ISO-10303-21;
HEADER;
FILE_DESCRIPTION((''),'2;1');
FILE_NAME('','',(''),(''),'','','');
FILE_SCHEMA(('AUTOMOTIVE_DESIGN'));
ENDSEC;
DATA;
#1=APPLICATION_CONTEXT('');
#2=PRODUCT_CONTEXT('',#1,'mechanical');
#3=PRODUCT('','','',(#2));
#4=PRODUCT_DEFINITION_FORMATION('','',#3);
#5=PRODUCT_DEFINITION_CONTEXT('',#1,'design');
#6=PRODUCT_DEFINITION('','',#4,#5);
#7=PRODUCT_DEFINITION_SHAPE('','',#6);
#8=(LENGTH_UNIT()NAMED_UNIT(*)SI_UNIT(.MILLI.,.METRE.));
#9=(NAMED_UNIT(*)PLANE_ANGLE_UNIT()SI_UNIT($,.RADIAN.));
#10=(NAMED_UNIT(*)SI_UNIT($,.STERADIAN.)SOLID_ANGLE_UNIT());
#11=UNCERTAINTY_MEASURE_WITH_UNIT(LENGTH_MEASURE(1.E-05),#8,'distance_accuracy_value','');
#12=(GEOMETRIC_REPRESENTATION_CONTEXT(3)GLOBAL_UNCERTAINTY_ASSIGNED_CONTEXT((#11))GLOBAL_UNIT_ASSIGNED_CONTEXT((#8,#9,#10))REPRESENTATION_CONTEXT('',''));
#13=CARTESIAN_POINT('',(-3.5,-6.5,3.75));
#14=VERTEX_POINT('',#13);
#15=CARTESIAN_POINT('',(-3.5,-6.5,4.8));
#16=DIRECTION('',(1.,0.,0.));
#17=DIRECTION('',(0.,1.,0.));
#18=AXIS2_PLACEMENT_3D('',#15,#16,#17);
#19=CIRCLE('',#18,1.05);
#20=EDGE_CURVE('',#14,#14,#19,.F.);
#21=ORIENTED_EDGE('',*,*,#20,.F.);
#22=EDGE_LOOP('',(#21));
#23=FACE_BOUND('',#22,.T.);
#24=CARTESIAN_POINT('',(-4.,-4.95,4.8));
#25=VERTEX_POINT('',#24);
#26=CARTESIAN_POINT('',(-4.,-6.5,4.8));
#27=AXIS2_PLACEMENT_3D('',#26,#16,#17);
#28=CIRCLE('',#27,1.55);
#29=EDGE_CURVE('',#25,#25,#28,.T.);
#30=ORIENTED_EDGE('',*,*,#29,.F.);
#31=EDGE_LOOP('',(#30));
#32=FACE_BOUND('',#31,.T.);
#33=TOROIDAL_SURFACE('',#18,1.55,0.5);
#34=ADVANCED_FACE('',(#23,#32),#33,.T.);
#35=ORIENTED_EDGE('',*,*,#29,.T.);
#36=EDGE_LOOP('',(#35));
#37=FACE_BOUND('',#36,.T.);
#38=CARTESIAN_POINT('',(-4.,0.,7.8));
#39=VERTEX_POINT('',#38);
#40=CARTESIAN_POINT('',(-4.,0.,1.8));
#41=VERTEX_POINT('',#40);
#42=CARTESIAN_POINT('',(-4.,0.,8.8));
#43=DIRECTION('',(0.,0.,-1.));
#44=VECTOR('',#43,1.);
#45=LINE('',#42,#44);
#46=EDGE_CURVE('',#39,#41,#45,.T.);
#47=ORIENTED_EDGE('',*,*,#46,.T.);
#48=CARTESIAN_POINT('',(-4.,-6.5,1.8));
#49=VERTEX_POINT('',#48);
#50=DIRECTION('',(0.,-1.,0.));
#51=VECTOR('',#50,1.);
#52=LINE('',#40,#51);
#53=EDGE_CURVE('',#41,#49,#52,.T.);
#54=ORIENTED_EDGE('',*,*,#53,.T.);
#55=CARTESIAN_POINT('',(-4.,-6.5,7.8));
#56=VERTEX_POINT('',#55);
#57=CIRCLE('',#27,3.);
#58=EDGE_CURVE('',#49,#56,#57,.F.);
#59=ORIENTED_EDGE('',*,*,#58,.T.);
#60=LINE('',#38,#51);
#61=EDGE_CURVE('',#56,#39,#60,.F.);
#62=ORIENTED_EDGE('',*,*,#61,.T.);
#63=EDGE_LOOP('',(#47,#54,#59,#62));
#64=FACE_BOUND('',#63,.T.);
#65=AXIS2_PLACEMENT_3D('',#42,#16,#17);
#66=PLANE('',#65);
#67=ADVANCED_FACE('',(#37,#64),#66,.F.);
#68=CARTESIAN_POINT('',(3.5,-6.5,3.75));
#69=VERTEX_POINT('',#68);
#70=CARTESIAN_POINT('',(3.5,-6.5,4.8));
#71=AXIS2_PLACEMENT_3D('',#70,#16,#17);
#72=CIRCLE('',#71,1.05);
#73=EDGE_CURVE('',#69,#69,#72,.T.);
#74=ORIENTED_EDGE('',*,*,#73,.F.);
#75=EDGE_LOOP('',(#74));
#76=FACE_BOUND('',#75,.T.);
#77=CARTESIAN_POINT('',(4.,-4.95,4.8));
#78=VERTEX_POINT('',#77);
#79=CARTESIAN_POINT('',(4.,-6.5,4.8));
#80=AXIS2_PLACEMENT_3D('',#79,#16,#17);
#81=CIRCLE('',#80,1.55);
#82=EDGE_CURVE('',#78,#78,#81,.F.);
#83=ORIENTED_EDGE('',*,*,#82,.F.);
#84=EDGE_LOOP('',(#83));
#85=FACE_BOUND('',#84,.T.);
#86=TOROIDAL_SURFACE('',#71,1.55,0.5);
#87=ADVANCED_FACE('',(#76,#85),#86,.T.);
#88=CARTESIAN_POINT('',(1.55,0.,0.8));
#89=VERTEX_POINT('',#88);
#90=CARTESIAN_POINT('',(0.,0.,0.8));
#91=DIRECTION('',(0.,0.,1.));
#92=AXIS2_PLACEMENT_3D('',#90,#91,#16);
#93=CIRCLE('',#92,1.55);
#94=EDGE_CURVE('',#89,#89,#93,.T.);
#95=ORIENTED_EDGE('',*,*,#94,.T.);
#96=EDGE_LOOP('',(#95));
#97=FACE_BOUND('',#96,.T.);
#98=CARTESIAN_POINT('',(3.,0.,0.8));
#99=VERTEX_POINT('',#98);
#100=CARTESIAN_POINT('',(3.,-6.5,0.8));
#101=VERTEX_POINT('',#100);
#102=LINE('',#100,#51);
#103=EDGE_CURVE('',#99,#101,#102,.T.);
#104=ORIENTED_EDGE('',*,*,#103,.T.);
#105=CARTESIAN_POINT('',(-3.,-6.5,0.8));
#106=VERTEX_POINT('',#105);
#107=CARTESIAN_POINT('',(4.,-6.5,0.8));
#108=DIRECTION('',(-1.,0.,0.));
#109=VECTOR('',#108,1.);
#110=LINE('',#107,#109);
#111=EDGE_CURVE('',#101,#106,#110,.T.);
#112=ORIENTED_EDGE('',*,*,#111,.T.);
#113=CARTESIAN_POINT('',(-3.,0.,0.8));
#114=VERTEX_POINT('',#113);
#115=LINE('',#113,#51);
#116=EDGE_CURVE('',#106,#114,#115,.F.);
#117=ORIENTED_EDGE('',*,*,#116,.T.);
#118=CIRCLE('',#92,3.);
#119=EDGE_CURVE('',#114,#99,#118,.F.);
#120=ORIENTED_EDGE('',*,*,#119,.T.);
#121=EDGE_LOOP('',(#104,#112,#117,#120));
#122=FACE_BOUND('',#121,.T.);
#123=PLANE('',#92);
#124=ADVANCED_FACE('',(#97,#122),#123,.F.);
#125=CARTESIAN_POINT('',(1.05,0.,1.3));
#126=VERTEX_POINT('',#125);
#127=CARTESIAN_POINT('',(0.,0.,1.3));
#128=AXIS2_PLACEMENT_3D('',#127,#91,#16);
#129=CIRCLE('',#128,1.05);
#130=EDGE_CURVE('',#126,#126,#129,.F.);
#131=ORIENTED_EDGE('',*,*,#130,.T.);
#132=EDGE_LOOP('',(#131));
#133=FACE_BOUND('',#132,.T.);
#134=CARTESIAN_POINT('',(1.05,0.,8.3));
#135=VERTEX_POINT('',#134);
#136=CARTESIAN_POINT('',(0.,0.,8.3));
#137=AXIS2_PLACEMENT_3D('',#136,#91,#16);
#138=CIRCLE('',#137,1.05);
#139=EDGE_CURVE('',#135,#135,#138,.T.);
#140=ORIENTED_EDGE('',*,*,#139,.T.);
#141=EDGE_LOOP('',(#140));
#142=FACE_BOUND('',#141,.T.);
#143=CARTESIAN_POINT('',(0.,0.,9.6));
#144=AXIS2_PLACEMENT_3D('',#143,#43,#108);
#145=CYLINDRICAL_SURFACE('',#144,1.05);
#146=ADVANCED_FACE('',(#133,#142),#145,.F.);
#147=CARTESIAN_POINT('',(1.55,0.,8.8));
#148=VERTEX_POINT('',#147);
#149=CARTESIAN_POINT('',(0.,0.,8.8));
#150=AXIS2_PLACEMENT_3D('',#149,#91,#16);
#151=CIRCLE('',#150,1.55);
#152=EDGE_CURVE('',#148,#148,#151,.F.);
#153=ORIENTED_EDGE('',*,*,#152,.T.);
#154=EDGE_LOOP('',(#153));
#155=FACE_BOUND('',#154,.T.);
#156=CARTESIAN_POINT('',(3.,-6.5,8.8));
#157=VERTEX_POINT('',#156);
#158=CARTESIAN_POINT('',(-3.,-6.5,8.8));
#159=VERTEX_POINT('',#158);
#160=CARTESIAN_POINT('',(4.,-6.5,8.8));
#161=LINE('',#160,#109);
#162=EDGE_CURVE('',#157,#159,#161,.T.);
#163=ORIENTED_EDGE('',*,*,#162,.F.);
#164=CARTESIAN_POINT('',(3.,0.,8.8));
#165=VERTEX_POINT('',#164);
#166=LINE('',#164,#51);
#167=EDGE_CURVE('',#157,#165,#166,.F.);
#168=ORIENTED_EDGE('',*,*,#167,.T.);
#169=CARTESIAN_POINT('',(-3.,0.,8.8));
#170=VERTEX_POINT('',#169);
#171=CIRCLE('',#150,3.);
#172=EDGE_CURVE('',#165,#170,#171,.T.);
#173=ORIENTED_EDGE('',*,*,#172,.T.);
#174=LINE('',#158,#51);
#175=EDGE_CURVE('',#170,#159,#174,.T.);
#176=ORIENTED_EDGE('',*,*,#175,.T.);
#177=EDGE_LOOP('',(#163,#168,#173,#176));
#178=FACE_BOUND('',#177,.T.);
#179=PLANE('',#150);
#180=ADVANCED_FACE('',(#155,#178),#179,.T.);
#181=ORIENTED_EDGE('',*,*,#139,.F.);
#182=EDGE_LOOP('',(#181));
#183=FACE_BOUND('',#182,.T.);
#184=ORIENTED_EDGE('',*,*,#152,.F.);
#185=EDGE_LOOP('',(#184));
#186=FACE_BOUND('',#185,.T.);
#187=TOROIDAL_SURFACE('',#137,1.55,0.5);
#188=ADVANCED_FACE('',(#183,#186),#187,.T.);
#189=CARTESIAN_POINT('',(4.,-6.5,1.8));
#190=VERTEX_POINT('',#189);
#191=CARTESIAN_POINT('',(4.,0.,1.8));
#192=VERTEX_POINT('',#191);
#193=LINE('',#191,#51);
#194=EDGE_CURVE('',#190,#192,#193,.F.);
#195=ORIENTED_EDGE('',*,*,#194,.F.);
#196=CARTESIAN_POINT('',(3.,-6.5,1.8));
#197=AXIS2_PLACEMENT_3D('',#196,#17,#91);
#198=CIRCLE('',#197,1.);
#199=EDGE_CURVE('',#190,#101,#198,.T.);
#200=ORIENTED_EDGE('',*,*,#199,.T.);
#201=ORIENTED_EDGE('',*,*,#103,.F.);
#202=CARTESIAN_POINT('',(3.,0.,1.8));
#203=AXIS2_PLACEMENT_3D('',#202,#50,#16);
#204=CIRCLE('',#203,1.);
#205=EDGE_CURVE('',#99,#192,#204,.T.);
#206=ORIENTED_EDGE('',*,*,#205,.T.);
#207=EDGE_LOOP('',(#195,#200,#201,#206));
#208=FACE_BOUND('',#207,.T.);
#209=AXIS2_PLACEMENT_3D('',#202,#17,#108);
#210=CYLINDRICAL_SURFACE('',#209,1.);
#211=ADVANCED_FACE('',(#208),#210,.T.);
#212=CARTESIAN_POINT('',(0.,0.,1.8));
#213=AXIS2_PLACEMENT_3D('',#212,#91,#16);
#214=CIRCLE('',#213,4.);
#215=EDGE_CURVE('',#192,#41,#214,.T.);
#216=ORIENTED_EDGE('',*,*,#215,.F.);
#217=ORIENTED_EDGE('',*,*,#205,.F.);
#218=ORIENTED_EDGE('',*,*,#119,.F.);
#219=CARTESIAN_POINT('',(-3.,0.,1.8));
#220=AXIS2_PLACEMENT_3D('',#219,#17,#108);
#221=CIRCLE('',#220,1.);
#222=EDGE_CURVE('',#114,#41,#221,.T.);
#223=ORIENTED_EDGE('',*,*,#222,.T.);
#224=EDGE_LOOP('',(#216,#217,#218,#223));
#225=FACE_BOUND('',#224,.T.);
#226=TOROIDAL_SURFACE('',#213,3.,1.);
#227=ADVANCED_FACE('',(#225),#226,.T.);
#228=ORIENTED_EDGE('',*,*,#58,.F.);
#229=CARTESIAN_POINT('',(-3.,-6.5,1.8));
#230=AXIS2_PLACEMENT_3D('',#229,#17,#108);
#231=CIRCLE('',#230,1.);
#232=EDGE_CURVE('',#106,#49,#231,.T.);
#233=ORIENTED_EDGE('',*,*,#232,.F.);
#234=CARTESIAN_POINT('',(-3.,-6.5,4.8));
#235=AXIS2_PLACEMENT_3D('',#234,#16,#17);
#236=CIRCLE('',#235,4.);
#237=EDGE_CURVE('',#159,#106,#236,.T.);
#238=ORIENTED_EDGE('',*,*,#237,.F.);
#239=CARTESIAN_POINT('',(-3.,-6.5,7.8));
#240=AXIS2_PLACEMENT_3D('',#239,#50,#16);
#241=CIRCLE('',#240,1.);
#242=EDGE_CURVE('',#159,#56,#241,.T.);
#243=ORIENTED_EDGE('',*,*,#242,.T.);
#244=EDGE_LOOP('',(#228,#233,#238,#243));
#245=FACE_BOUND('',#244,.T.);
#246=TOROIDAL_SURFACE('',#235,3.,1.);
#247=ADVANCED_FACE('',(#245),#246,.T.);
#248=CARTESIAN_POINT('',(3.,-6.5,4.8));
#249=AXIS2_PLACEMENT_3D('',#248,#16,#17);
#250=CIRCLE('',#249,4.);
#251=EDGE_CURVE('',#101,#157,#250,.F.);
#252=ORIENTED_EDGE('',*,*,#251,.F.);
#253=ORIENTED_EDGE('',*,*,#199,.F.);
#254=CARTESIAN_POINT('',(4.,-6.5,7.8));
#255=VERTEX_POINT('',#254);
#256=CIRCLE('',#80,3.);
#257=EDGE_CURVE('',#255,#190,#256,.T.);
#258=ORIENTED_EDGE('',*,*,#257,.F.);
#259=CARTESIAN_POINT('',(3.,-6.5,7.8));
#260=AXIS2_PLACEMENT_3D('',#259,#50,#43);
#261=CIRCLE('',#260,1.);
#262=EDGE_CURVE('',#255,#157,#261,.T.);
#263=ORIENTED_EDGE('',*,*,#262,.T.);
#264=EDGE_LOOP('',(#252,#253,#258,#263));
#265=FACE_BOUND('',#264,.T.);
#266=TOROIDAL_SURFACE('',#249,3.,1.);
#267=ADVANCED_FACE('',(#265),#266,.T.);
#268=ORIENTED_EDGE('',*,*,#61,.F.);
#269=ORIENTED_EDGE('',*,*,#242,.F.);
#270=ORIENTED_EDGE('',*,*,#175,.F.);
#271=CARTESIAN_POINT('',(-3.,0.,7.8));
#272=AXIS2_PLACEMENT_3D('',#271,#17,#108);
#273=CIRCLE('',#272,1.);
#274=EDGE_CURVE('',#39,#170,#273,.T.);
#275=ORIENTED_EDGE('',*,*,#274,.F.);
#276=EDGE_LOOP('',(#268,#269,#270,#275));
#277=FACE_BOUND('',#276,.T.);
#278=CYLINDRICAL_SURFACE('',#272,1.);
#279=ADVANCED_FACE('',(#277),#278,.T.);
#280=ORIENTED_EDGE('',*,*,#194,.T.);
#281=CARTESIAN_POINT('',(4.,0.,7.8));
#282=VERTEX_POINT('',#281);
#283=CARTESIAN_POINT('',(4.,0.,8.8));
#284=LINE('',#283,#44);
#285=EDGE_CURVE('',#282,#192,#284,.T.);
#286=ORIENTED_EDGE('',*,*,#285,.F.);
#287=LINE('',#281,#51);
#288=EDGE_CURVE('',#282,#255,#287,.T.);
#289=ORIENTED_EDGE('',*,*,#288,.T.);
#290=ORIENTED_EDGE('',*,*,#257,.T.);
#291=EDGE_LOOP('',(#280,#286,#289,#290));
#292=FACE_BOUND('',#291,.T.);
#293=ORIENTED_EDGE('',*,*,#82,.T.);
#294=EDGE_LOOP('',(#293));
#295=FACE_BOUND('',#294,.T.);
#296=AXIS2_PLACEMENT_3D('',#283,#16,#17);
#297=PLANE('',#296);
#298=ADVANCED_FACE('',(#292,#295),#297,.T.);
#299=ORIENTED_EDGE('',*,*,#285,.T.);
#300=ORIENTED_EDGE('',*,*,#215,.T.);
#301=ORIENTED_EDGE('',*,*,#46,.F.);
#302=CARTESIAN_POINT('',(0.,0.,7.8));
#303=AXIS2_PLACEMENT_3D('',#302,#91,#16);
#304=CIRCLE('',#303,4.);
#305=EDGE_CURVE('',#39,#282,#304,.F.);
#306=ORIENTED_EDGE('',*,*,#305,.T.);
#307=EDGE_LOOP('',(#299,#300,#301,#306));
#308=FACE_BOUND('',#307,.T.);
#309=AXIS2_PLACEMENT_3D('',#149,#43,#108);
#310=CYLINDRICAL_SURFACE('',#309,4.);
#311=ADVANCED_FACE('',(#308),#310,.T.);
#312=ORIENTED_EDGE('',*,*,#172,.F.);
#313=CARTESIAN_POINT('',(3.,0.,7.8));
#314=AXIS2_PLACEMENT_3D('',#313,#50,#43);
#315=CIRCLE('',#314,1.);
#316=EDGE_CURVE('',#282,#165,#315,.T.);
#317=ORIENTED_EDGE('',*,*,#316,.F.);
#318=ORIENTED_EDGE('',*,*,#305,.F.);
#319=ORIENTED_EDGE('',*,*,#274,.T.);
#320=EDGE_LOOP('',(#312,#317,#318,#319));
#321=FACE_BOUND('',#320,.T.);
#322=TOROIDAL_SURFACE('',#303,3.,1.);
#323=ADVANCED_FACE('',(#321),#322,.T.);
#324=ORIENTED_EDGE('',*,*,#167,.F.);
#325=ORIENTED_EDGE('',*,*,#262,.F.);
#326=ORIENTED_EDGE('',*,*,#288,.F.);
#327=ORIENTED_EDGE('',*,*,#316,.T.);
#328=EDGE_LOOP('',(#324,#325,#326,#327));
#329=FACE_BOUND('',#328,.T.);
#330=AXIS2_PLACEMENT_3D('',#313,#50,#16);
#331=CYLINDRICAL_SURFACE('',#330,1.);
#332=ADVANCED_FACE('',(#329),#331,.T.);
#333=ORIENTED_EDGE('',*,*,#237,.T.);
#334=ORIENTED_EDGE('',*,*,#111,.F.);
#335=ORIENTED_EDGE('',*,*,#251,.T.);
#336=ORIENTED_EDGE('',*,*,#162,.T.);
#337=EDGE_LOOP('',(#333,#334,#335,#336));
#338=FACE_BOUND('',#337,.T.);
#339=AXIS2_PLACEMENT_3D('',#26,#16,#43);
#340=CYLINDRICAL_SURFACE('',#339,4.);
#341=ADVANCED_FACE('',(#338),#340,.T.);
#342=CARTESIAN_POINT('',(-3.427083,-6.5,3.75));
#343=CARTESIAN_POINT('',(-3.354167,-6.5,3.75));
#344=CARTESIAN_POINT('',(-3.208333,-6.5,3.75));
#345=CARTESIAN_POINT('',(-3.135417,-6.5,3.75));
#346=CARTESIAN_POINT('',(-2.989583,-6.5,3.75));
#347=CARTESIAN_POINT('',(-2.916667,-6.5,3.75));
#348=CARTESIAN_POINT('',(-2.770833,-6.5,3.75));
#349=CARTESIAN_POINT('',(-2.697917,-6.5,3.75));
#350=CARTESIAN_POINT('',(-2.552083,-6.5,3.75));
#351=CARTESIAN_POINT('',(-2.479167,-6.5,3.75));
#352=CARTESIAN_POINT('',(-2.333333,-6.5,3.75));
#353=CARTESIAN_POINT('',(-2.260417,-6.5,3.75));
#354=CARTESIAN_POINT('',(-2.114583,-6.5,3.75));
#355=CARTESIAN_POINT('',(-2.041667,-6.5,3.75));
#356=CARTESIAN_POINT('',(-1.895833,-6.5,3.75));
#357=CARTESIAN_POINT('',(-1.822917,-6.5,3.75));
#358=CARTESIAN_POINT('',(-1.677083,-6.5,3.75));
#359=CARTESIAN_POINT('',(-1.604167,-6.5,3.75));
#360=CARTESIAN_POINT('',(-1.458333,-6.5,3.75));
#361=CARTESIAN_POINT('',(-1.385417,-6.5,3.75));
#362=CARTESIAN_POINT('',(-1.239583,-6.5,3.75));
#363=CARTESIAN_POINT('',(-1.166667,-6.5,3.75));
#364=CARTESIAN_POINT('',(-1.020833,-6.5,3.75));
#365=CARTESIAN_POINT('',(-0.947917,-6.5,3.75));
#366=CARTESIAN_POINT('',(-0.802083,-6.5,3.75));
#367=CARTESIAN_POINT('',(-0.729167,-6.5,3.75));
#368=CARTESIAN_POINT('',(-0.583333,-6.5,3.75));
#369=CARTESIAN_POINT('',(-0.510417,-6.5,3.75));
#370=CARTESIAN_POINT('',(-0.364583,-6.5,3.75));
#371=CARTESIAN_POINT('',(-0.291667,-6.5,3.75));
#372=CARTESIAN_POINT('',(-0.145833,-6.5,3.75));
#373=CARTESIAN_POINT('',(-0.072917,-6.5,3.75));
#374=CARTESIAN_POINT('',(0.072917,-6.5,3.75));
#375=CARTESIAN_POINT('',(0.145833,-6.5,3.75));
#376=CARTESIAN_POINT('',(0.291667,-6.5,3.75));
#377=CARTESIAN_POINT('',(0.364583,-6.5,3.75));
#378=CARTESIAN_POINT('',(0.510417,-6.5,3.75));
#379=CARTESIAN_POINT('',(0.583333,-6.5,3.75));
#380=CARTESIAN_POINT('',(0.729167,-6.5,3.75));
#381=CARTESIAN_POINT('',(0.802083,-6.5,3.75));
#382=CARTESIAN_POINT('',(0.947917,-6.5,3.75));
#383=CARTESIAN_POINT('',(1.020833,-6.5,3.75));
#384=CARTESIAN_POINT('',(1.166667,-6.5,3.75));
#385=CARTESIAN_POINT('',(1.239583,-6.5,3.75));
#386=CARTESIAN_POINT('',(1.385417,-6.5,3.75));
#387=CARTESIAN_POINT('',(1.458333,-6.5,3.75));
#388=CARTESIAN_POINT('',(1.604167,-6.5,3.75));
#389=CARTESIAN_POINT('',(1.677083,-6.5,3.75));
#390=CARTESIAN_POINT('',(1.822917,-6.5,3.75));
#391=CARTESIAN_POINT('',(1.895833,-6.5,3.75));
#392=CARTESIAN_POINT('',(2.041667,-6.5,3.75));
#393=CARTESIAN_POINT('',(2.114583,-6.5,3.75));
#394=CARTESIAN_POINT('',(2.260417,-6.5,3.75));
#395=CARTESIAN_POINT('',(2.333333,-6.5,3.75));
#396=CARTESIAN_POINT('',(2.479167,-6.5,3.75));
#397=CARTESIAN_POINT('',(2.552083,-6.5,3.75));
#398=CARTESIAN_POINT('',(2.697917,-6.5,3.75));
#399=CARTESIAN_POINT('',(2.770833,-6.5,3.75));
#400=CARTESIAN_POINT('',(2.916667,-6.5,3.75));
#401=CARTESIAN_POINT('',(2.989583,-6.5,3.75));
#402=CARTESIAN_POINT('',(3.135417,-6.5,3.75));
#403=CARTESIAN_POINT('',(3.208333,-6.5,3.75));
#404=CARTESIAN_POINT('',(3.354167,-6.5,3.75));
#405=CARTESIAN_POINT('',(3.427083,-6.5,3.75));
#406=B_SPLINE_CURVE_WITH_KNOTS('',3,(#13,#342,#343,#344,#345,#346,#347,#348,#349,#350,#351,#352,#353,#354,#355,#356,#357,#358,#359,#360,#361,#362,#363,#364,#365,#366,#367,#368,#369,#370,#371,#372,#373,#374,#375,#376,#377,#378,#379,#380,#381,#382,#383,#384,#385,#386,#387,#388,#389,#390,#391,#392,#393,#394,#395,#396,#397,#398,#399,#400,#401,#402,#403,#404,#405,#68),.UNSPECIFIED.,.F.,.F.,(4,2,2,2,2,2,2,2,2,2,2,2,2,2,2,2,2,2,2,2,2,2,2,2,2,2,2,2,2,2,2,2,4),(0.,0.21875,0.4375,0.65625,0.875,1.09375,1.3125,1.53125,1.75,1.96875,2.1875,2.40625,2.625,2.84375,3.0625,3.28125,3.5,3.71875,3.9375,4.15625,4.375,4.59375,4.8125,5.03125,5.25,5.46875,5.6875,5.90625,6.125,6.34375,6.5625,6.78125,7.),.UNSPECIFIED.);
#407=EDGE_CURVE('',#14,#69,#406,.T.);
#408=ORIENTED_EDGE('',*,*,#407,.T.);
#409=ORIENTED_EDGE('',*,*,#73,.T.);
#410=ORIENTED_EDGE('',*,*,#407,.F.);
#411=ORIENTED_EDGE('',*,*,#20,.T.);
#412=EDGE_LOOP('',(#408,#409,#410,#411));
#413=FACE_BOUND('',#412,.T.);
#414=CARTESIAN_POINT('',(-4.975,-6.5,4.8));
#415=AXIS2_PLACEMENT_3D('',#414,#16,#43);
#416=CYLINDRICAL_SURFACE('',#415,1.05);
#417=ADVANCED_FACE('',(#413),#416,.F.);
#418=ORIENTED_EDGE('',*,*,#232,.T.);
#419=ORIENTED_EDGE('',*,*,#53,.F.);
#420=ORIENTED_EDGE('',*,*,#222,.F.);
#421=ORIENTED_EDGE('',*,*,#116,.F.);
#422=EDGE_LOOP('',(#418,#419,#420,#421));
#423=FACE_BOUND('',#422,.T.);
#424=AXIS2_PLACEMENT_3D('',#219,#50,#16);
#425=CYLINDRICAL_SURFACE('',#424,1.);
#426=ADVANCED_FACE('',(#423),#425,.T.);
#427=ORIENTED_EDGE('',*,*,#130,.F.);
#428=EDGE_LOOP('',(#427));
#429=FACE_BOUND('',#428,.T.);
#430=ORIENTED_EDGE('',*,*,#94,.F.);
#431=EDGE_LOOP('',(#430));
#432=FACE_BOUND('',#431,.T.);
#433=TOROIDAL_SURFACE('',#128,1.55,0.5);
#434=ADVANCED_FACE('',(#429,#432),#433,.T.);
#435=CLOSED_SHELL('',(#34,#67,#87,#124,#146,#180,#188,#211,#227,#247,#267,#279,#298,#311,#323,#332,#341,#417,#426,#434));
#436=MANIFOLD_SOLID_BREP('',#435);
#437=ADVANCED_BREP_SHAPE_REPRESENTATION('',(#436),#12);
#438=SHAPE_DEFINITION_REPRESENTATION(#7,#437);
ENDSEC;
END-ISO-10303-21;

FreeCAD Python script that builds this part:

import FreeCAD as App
import Part
import Sketcher

V = App.Vector


def edges_at(feature, points):
    """Names of the edges that pass closest to the given points."""
    edges = feature.Shape.Edges
    near = lambda p: min(range(len(edges)), key=lambda i: edges[i].distToShape(Part.Vertex(*p))[0])
    return sorted({f"Edge{near(p) + 1}" for p in points})


def add_polygon(sketch, points):
    """Adds a closed chain of lines whose ends are joined by coincident constraints."""
    first, n = sketch.GeometryCount, len(points)
    for a, b in zip(points, points[1:] + points[:1]):
        sketch.addGeometry(Part.LineSegment(App.Vector(*a, 0), App.Vector(*b, 0)), False)
    for i in range(n):
        sketch.addConstraint(Sketcher.Constraint("Coincident", first + i, 2, first + (i + 1) % n, 1))

doc = App.newDocument("Part")
body = doc.addObject("PartDesign::Body", "Body")

sketch1 = doc.addObject("Sketcher::SketchObject", "Sketch")
body.addObject(sketch1)
sketch1.AttachmentSupport = (doc.XY_Plane, [""])
sketch1.MapMode = "FlatFace"
sketch1.AttachmentOffset = App.Placement(V(0, 0, 0.8), App.Rotation())
sketch1.addGeometry(Part.Circle(V(0, 0, 0), V(0, 0, 1), 4), False)
sketch1.addConstraint(Sketcher.Constraint("Coincident", 0, 3, -1, 1))
sketch1.addConstraint(Sketcher.Constraint("Diameter", 0, 8.0))
pad1 = doc.addObject("PartDesign::Pad", "Pad")
body.addObject(pad1)
pad1.Profile = sketch1
pad1.Length = 8

sketch2 = doc.addObject("Sketcher::SketchObject", "Sketch001")
body.addObject(sketch2)
sketch2.AttachmentSupport = (doc.XY_Plane, [""])
sketch2.MapMode = "FlatFace"
sketch2.AttachmentOffset = App.Placement(V(0, 0, 0.8), App.Rotation())
add_polygon(sketch2, [(4, 0), (4, -6), (-4, -6), (-4, 0)])
sketch2.addConstraint(Sketcher.Constraint("Vertical", 0))
sketch2.addConstraint(Sketcher.Constraint("Horizontal", 1))
sketch2.addConstraint(Sketcher.Constraint("Vertical", 2))
sketch2.addConstraint(Sketcher.Constraint("Horizontal", 3))
sketch2.addConstraint(Sketcher.Constraint("Symmetric", 2, 2, 3, 2, -1, 1))
sketch2.addConstraint(Sketcher.Constraint("DistanceX", 1, 2, 1, 1, 8.0))
sketch2.addConstraint(Sketcher.Constraint("DistanceY", 0, 2, 0, 1, 6.5))
pad2 = doc.addObject("PartDesign::Pad", "Pad001")
body.addObject(pad2)
pad2.Profile = sketch2
pad2.Length = 8

sketch3 = doc.addObject("Sketcher::SketchObject", "Sketch002")
body.addObject(sketch3)
sketch3.AttachmentSupport = (doc.YZ_Plane, [""])
sketch3.MapMode = "FlatFace"
sketch3.AttachmentOffset = App.Placement(V(0, 0, 4), App.Rotation())
sketch3.addGeometry(Part.Circle(V(-6.5, 4.8, 0), V(0, 0, 1), 4), False)
sketch3.addConstraint(Sketcher.Constraint("Diameter", 0, 8.0))
sketch3.addConstraint(Sketcher.Constraint("DistanceX", 0, 3, -1, 1, 6.5))
sketch3.addConstraint(Sketcher.Constraint("DistanceY", -1, 1, 0, 3, 4.8))
pad3 = doc.addObject("PartDesign::Pad", "Pad002")
body.addObject(pad3)
pad3.Profile = sketch3
pad3.Length = 8
pad3.Reversed = True

sketch4 = doc.addObject("Sketcher::SketchObject", "Sketch003")
body.addObject(sketch4)
sketch4.AttachmentSupport = (doc.XY_Plane, [""])
sketch4.MapMode = "FlatFace"
sketch4.addGeometry(Part.Circle(V(0, 0, 0), V(0, 0, 1), 1.1), False)
sketch4.addConstraint(Sketcher.Constraint("Coincident", 0, 3, -1, 1))
sketch4.addConstraint(Sketcher.Constraint("Diameter", 0, 2.1))
pocket1 = doc.addObject("PartDesign::Pocket", "Pocket")
body.addObject(pocket1)
pocket1.Profile = sketch4
pocket1.Length = 9.6
pocket1.Reversed = True

sketch5 = doc.addObject("Sketcher::SketchObject", "Sketch004")
body.addObject(sketch5)
sketch5.AttachmentSupport = (doc.YZ_Plane, [""])
sketch5.MapMode = "FlatFace"
sketch5.AttachmentOffset = App.Placement(V(0, 0, 4.975), App.Rotation())
sketch5.addGeometry(Part.Circle(V(-6.5, 4.8, 0), V(0, 0, 1), 1.1), False)
sketch5.addConstraint(Sketcher.Constraint("Diameter", 0, 2.1))
sketch5.addConstraint(Sketcher.Constraint("DistanceX", 0, 3, -1, 1, 6.5))
sketch5.addConstraint(Sketcher.Constraint("DistanceY", -1, 1, 0, 3, 4.8))
pocket2 = doc.addObject("PartDesign::Pocket", "Pocket001")
body.addObject(pocket2)
pocket2.Profile = sketch5
pocket2.Length = 9.95
doc.recompute()

fillet = doc.addObject("PartDesign::Fillet", "Fillet")
body.addObject(fillet)
fillet.Base = (pocket2, edges_at(pocket2, [
    (-4, -3.25, 8.8),
    (4, -3.25, 0.8),
    (0, 4, 0.8),
    (-4, -10.5, 4.8),
    (4, -10.5, 4.8),
    (0, 4, 8.8),
    (-4, -3.25, 0.8),
    (4, -3.25, 8.8),
]))
fillet.Radius = 1
doc.recompute()

fillet2 = doc.addObject("PartDesign::Fillet", "Fillet001")
body.addObject(fillet2)
fillet2.Base = (fillet, edges_at(fillet, [
    (-1.05, 0, 8.8),
    (-1.05, 0, 0.8),
    (-4, -6.5, 5.85),
    (4, -6.5, 5.85),
]))
fillet2.Radius = 0.5

doc.recompute()
